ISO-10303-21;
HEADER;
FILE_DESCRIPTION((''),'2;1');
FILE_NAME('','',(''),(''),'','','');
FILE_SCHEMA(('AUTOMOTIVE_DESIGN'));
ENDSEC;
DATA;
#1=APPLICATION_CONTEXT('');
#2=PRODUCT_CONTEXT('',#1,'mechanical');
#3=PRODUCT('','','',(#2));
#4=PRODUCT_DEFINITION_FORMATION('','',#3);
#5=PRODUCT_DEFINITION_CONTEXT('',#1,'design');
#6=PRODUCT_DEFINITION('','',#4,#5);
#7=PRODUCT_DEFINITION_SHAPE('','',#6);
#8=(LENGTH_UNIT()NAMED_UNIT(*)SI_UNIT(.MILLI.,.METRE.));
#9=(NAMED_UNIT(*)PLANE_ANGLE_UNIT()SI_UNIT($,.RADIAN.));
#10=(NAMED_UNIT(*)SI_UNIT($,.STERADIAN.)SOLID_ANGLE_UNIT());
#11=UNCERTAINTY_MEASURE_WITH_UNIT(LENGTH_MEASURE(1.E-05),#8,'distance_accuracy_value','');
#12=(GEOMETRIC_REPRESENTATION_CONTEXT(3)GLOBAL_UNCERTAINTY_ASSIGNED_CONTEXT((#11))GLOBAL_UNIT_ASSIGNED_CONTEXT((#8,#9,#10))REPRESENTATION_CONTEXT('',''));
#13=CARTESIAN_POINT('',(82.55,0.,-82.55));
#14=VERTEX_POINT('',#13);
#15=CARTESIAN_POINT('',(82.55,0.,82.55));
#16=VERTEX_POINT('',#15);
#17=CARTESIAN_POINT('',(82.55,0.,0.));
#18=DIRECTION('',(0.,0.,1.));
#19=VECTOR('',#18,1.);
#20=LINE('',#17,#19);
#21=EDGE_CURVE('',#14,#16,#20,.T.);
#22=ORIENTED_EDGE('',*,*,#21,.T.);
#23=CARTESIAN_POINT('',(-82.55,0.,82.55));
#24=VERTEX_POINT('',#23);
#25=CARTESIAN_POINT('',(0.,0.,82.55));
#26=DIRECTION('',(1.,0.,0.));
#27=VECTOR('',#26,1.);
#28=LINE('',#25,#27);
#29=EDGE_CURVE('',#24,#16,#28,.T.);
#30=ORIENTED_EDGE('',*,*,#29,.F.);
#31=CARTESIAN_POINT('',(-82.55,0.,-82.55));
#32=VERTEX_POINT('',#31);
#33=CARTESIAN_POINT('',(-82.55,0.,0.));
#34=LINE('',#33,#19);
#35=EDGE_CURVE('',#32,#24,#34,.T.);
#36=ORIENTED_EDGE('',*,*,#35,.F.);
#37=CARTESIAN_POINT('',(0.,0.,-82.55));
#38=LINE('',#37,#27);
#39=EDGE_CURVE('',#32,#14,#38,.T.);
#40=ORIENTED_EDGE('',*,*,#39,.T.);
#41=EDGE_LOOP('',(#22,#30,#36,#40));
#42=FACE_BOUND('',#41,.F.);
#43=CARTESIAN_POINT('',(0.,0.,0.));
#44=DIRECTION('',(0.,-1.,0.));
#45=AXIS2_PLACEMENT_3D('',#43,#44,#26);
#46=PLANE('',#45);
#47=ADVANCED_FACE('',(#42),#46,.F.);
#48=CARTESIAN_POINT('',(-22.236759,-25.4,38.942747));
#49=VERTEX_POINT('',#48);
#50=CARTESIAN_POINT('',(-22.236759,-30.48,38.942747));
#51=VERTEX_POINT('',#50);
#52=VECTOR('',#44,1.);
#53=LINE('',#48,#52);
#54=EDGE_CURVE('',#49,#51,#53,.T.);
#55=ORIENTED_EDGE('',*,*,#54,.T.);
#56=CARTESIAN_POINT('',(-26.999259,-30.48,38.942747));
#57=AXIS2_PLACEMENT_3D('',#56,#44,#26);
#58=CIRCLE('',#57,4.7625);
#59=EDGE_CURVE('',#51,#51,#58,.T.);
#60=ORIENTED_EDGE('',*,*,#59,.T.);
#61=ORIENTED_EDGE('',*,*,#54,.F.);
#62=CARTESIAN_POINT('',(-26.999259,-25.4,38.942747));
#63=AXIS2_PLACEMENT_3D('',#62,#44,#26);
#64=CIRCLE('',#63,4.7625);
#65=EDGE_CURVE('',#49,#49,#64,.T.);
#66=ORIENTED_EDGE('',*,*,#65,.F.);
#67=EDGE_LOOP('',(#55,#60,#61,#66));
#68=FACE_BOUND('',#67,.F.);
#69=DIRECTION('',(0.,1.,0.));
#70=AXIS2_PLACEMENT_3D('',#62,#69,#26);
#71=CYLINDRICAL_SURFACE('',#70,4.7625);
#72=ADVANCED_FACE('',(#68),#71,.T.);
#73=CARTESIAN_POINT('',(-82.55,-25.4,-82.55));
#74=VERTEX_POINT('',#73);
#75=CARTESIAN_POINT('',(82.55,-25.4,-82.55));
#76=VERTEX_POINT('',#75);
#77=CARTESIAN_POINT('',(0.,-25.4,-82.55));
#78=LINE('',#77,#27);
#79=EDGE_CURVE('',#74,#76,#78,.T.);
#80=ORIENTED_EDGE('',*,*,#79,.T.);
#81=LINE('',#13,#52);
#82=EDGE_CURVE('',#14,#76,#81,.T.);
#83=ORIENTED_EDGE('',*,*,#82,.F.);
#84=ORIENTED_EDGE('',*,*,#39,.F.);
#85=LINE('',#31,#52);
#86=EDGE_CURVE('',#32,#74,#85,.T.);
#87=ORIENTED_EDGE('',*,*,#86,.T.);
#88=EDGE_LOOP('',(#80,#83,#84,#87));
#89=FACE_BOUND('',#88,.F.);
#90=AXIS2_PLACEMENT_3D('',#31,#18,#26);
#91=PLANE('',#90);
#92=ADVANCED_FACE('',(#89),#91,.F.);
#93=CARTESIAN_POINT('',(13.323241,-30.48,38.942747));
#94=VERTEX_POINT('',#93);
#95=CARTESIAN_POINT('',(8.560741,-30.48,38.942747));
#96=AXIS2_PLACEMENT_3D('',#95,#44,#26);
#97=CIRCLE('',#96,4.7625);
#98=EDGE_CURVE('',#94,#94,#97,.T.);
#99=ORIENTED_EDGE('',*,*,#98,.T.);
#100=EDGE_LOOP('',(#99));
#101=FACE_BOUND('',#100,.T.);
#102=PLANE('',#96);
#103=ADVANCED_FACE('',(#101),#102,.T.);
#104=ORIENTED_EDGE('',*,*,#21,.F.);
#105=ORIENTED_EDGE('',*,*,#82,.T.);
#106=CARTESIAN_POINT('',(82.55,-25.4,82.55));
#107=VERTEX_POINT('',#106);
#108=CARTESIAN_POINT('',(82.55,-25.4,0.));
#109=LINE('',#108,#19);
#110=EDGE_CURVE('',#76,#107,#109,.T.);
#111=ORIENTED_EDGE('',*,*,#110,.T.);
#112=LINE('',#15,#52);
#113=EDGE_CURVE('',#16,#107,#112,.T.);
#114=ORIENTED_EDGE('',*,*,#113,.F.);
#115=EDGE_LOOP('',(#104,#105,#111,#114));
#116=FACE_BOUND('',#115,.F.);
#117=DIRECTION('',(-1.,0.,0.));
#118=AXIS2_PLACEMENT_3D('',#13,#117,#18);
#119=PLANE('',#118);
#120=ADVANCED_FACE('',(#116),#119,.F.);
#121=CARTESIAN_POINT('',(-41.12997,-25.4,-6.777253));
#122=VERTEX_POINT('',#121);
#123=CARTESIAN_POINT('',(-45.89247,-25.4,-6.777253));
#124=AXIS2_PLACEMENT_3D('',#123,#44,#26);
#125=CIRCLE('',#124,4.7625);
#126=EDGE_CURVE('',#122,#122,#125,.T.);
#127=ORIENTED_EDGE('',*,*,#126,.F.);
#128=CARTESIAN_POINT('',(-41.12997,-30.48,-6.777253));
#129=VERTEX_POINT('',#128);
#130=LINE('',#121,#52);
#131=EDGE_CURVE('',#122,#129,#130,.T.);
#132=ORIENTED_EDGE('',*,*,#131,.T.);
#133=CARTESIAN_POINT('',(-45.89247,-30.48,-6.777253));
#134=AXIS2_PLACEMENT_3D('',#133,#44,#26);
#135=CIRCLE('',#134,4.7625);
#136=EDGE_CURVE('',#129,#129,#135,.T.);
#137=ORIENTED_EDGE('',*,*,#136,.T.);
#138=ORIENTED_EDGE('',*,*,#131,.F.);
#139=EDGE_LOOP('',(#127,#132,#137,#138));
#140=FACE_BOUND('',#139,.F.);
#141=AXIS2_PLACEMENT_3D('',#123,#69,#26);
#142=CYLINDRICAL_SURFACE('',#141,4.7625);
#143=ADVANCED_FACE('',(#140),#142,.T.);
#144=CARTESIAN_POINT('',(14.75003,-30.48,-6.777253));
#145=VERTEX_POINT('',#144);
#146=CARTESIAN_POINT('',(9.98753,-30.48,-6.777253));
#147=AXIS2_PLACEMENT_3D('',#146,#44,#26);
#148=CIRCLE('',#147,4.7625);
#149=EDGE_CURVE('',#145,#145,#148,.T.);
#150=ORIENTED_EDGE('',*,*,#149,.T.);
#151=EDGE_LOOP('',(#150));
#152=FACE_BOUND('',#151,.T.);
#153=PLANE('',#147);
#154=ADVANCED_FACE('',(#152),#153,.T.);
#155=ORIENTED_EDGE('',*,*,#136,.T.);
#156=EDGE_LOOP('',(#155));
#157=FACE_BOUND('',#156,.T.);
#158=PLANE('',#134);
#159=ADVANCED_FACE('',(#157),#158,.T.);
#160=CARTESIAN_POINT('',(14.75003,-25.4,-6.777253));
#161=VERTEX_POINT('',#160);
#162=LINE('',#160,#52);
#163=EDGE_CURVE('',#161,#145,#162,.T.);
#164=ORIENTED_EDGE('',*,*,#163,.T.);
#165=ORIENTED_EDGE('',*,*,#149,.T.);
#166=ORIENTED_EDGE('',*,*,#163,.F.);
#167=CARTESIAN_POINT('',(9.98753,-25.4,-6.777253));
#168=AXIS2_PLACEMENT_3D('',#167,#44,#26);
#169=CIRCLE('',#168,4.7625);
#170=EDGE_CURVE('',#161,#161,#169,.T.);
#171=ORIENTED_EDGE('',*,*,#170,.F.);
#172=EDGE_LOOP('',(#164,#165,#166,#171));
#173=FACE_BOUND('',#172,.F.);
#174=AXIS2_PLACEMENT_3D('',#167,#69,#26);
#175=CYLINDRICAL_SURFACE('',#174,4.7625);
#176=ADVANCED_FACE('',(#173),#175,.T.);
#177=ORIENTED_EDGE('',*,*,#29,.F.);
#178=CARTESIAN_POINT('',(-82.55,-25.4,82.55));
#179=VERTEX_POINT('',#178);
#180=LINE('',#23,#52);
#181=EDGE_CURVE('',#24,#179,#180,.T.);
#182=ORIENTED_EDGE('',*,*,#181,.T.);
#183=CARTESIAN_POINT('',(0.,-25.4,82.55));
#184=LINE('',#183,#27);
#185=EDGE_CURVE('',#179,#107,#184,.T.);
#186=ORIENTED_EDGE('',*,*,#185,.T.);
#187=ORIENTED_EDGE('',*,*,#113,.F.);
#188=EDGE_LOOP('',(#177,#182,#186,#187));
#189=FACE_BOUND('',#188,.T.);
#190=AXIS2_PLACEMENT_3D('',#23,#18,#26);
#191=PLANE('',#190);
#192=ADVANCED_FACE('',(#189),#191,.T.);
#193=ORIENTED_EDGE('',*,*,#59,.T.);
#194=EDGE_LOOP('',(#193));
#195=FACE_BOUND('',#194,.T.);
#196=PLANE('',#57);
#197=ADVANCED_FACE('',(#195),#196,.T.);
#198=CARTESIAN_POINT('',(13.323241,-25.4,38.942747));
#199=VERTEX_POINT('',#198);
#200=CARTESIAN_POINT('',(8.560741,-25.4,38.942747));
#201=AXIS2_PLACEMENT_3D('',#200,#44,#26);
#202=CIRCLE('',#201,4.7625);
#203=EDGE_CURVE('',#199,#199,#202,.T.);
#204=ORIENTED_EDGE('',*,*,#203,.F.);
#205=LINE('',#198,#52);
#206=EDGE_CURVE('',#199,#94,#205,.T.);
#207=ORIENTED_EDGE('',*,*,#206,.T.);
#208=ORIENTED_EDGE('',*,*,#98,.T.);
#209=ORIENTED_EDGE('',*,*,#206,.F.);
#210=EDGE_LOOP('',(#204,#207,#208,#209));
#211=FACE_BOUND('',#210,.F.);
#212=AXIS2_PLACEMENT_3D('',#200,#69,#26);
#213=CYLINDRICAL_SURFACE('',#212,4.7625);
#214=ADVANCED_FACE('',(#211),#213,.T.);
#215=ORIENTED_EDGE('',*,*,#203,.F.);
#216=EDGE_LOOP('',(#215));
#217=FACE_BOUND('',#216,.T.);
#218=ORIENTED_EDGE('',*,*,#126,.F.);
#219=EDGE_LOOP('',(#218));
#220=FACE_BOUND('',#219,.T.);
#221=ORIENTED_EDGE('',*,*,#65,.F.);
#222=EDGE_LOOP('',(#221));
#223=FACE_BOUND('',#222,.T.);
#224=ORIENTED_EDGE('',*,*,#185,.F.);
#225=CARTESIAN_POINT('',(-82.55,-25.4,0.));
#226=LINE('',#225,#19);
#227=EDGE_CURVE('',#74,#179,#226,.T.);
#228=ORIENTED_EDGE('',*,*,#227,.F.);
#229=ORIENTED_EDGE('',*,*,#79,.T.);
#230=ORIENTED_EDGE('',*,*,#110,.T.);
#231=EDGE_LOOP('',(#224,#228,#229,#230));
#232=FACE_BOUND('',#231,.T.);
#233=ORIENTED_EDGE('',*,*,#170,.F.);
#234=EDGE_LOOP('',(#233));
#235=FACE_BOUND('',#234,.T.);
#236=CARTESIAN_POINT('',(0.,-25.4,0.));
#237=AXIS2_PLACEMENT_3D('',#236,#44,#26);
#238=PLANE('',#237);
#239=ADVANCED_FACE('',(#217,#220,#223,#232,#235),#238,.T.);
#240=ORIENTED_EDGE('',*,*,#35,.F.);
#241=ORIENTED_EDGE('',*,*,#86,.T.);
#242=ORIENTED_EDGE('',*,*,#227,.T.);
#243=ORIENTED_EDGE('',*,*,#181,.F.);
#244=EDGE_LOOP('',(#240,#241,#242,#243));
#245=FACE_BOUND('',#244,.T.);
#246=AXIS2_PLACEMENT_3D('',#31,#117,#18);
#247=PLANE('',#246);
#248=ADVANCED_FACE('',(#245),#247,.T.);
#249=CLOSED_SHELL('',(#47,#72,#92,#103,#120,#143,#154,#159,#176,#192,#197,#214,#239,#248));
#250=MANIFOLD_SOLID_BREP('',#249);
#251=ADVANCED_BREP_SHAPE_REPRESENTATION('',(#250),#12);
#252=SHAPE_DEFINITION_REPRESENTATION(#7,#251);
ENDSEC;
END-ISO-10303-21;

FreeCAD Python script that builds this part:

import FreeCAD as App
import Part
import Sketcher
from FreeCAD import Vector
Q = App.Units.Quantity


def add_polygon(sketch, points):
    """Adds a closed chain of lines whose ends are joined by coincident constraints."""
    first, n = sketch.GeometryCount, len(points)
    for a, b in zip(points, points[1:] + points[:1]):
        sketch.addGeometry(Part.LineSegment(App.Vector(*a, 0), App.Vector(*b, 0)), False)
    for i in range(n):
        sketch.addConstraint(Sketcher.Constraint("Coincident", first + i, 2, first + (i + 1) % n, 1))

doc = App.newDocument("Part")
params = doc.addObject("Spreadsheet::Sheet", "Params")
for row, (alias, value) in enumerate([
    ("sketch1_width", "6.5 in"),
    ("pad1_length", "1 in"),
    ("sketch2_diameter", "0.375 in"),
    ("pad2_length", "0.2 in"),
], start=1):
    params.set(f"A{row}", alias)
    params.set(f"B{row}", "=" + value)
    params.setAlias(f"B{row}", alias)

body = doc.addObject("PartDesign::Body", "Body")

# Sketch on XZ plane
sketch1 = body.newObject("Sketcher::SketchObject", "Sketch")
sketch1.AttachmentSupport = (doc.getObject("XZ_Plane"), [""])
sketch1.MapMode = "FlatFace"
add_polygon(sketch1, [(-83, 83), (-83, -83), (83, -83), (83, 83)])  # lines 0-3
sketch1.addConstraint([
    Sketcher.Constraint("Vertical", 0),
    Sketcher.Constraint("Horizontal", 1),
    Sketcher.Constraint("Vertical", 2),
    Sketcher.Constraint("Horizontal", 3),
    Sketcher.Constraint("Symmetric", 0, 2, 2, 2, -1, 1),
    Sketcher.Constraint("Equal", 3, 0),
    Sketcher.Constraint("DistanceX", 1, 1, 1, 2, Q("6.5 in")),
])
sketch1.setExpression("Constraints[10]", "Params.sketch1_width")
pad1 = body.newObject("PartDesign::Pad", "Pad")
pad1.Profile = sketch1
pad1.setExpression("Length", "Params.pad1_length")

# Sketch on XZ plane
sketch2 = body.newObject("Sketcher::SketchObject", "Sketch001")
sketch2.AttachmentSupport = (doc.getObject("XZ_Plane"), [""])
sketch2.MapMode = "FlatFace"
sketch2.AttachmentOffset = App.Placement(Vector(0, 0, 1 * 25.4), App.Rotation())
sketch2.addGeometry([
    Part.Circle(Vector(-27, 38.9, 0), Vector(0, 0, 1), 4.8),
    Part.Circle(Vector(8.6, 38.9, 0), Vector(0, 0, 1), 4.8),
    Part.Circle(Vector(-45.9, -6.8, 0), Vector(0, 0, 1), 4.8),
    Part.Circle(Vector(10, -6.8, 0), Vector(0, 0, 1), 4.8),
], False)
sketch2.addConstraint([
    Sketcher.Constraint("Equal", 0, 1),
    Sketcher.Constraint("Equal", 1, 2),
    Sketcher.Constraint("Equal", 2, 3),
    Sketcher.Constraint("Horizontal", 0, 3, 1, 3),
    Sketcher.Constraint("Horizontal", 2, 3, 3, 3),
    Sketcher.Constraint("Diameter", 0, Q("0.375 in")),
    Sketcher.Constraint("DistanceX", 0, 3, 1, 3, Q("1.4 in")),
    Sketcher.Constraint("DistanceY", 2, 3, 0, 3, Q("1.8 in")),
    Sketcher.Constraint("DistanceX", 2, 3, 3, 3, Q("2.2 in")),
    Sketcher.Constraint("DistanceX", 0, 3, -1, 1, 26.999259),
    Sketcher.Constraint("DistanceX", 2, 3, -1, 1, 45.89247),
    Sketcher.Constraint("DistanceY", -1, 1, 0, 3, 38.942747),
])
sketch2.setExpression("Constraints[5]", "Params.sketch2_diameter")
pad2 = body.newObject("PartDesign::Pad", "Pad001")
pad2.Profile = sketch2
pad2.setExpression("Length", "Params.pad2_length")

doc.recompute()
